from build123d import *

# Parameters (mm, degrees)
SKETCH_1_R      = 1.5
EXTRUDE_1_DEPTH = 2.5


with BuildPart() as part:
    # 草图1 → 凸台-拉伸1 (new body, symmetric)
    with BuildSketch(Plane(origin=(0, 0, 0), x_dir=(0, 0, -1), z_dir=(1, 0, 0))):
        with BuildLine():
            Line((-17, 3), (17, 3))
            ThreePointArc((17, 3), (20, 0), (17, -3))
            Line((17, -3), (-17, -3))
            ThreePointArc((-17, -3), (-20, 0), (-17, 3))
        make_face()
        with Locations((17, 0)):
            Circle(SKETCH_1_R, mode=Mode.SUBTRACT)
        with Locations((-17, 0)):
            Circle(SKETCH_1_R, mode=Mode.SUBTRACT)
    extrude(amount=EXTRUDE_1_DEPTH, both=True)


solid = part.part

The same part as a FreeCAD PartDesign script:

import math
import FreeCAD as App
import Part
import Sketcher
Q = App.Units.Quantity

doc = App.newDocument("Part")
body = doc.addObject("PartDesign::Body", "Body")

sketch1 = body.newObject("Sketcher::SketchObject", "Sketch")
sketch1.AttachmentSupport = (doc.getObject("YZ_Plane"), [""])
sketch1.MapMode = "FlatFace"
sketch1.addGeometry([
    Part.LineSegment(App.Vector(3, -17, 0), App.Vector(3, 17, 0)),
    Part.ArcOfCircle(Part.Circle(App.Vector(0, 17, 0), App.Vector(0, 0, 1), 3), math.radians(0), math.radians(180)),
    Part.LineSegment(App.Vector(-3, 17, 0), App.Vector(-3, -17, 0)),
    Part.ArcOfCircle(Part.Circle(App.Vector(0, -17, 0), App.Vector(0, 0, 1), 3), math.radians(180), math.radians(360)),
    Part.Circle(App.Vector(0, -17, 0), App.Vector(0, 0, 1), 1.5),
    Part.Circle(App.Vector(0, 17, 0), App.Vector(0, 0, 1), 1.5),
], False)
sketch1.addConstraint([
    Sketcher.Constraint("Tangent", 0, 2, 1, 1),
    Sketcher.Constraint("Tangent", 1, 2, 2, 1),
    Sketcher.Constraint("Tangent", 2, 2, 3, 1),
    Sketcher.Constraint("Tangent", 3, 2, 0, 1),
    Sketcher.Constraint("Vertical", 0),
    Sketcher.Constraint("Vertical", 2),
    Sketcher.Constraint("Coincident", 4, 3, 3, 3),
    Sketcher.Constraint("Coincident", 5, 3, 1, 3),
    Sketcher.Constraint("Equal", 4, 5),
    Sketcher.Constraint("Symmetric", 1, 3, 3, 3, -1, 1),
    Sketcher.Constraint("Diameter", 4, Q("3 mm")),
    Sketcher.Constraint("Radius", 1, Q("3 mm")),
    Sketcher.Constraint("DistanceY", 0, 1, 0, 2, Q("34 mm")),
])
pad1 = body.newObject("PartDesign::Pad", "Pad")
pad1.Profile = sketch1
pad1.Length = 5
pad1.Midplane = True

doc.recompute()
